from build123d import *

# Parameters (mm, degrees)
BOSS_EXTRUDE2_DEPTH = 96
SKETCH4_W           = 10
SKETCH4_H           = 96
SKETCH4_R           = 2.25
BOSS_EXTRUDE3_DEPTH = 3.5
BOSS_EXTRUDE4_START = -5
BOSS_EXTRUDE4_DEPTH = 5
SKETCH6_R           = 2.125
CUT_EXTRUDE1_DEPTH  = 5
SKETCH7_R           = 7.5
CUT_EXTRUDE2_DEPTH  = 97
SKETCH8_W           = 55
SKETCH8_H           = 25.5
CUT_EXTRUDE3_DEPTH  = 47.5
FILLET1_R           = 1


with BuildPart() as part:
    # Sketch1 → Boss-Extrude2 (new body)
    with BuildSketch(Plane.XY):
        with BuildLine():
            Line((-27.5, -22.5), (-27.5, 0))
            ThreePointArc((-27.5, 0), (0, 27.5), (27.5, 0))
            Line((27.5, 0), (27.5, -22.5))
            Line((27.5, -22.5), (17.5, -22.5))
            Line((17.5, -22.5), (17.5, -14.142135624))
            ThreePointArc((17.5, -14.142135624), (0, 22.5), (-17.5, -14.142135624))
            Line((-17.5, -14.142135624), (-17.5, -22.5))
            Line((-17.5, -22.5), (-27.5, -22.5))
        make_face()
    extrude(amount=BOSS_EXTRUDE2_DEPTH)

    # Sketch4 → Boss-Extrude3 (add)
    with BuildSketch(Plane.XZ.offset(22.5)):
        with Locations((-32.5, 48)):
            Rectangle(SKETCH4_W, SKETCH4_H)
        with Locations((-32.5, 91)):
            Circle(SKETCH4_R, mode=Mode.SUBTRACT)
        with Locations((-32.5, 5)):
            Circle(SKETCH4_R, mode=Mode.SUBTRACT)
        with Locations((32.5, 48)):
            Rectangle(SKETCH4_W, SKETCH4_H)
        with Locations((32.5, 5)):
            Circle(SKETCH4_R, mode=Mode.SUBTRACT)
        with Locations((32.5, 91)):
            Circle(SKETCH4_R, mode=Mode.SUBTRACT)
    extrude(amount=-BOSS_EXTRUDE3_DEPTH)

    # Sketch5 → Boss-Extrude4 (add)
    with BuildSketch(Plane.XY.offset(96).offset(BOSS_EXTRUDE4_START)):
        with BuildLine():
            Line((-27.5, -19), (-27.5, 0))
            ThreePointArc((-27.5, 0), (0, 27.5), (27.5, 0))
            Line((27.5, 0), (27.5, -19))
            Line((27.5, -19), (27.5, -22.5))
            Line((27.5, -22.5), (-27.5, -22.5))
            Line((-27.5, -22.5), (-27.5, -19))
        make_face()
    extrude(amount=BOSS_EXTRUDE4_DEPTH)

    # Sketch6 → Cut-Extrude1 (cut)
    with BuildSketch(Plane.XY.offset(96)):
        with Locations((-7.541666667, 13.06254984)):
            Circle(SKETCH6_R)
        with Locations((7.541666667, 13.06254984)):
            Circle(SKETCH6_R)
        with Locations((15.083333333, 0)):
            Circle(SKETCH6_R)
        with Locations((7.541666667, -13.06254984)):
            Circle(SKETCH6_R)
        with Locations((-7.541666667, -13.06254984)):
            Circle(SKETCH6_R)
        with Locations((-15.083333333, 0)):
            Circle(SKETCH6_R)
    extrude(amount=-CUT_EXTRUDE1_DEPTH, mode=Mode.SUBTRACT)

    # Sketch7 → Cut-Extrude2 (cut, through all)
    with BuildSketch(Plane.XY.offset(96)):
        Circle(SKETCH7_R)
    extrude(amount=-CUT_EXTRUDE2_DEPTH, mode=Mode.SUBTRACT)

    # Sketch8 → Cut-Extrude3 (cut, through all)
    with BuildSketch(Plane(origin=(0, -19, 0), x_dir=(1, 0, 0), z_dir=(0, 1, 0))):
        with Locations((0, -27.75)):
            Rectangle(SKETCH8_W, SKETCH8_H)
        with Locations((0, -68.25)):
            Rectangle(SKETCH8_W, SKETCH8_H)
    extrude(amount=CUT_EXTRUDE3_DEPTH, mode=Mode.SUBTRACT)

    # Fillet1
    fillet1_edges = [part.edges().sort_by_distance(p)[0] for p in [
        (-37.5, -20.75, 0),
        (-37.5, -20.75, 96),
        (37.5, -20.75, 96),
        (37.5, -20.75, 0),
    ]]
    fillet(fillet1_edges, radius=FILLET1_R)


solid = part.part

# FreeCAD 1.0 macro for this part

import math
import FreeCAD as App
import Part
import Sketcher

V = App.Vector


def edges_at(feature, points):
    """Names of the edges that pass closest to the given points."""
    edges = feature.Shape.Edges
    near = lambda p: min(range(len(edges)), key=lambda i: edges[i].distToShape(Part.Vertex(*p))[0])
    return sorted({f"Edge{near(p) + 1}" for p in points})

doc = App.newDocument("Part")
params = doc.addObject("Spreadsheet::Sheet", "Params")
for row, (alias, value) in enumerate([
    ("sketch1_radius", "22.5 mm"),
    ("sketch1_radius2", "27.5 mm"),
    ("sketch1_width", "10 mm"),
    ("sketch1_height", "22.5 mm"),
    ("pad1_length", "96 mm"),
    ("sketch2_diameter", "4.5 mm"),
    ("sketch2_width", "10 mm"),
    ("sketch2_height", "96 mm"),
    ("pad2_length", "3.5 mm"),
    ("sketch3_radius", "27.5 mm"),
    ("sketch3_height", "22.5 mm"),
    ("pad3_length", "5 mm"),
    ("sketch4_diameter", "4.25 mm"),
    ("pocket1_length", "5 mm"),
    ("sketch5_diameter", "15 mm"),
    ("sketch6_width", "55 mm"),
    ("sketch6_height", "25.5 mm"),
    ("fillet_radius", "1 mm"),
], start=1):
    params.set(f"A{row}", alias)
    params.set(f"B{row}", "=" + value)
    params.setAlias(f"B{row}", alias)

body = doc.addObject("PartDesign::Body", "Body")

sketch1 = body.newObject("Sketcher::SketchObject", "Sketch")
sketch1.AttachmentSupport = (doc.getObject("XY_Plane"), [""])
sketch1.MapMode = "FlatFace"
sketch1.addGeometry([
    Part.LineSegment(V(-28, 0, 0), V(-28, -22, 0)),
    Part.LineSegment(V(-28, -22, 0), V(-18, -22, 0)),
    Part.LineSegment(V(-18, -22, 0), V(-18, -14, 0)),
    Part.ArcOfCircle(Part.Circle(V(0, 0, 0), V(0, 0, 1), 22), math.radians(-39), math.radians(219)),
    Part.LineSegment(V(18, -14, 0), V(18, -22, 0)),
    Part.LineSegment(V(18, -22, 0), V(28, -22, 0)),
    Part.LineSegment(V(28, -22, 0), V(28, 0, 0)),
    Part.ArcOfCircle(Part.Circle(V(0, 0, 0), V(0, 0, 1), 28), math.radians(0), math.radians(180)),
], False)
sketch1.addConstraint([
    Sketcher.Constraint("Coincident", 0, 2, 1, 1),
    Sketcher.Constraint("Coincident", 1, 2, 2, 1),
    Sketcher.Constraint("Coincident", 2, 2, 3, 2),
    Sketcher.Constraint("Coincident", 3, 1, 4, 1),
    Sketcher.Constraint("Coincident", 4, 2, 5, 1),
    Sketcher.Constraint("Coincident", 5, 2, 6, 1),
    Sketcher.Constraint("Tangent", 6, 2, 7, 1),
    Sketcher.Constraint("Tangent", 7, 2, 0, 1),
    Sketcher.Constraint("Vertical", 0),
    Sketcher.Constraint("Horizontal", 1),
    Sketcher.Constraint("Vertical", 2),
    Sketcher.Constraint("Vertical", 4),
    Sketcher.Constraint("Horizontal", 5),
    Sketcher.Constraint("Vertical", 6),
    Sketcher.Constraint("Coincident", 3, 3, -1, 1),
    Sketcher.Constraint("Coincident", 7, 3, -1, 1),
    Sketcher.Constraint("Symmetric", 1, 2, 4, 2, -2),
    Sketcher.Constraint("Radius", 3, 22.5),
    Sketcher.Constraint("Radius", 7, 27.5),
    Sketcher.Constraint("DistanceX", 1, 1, 1, 2, 10.0),
    Sketcher.Constraint("DistanceY", 0, 2, 0, 1, 22.5),
])
sketch1.setExpression("Constraints[17]", "Params.sketch1_radius")
sketch1.setExpression("Constraints[18]", "Params.sketch1_radius2")
sketch1.setExpression("Constraints[19]", "Params.sketch1_width")
sketch1.setExpression("Constraints[20]", "Params.sketch1_height")
pad1 = body.newObject("PartDesign::Pad", "Pad")
pad1.Profile = sketch1
pad1.setExpression("Length", "Params.pad1_length")

sketch2 = body.newObject("Sketcher::SketchObject", "Sketch001")
sketch2.AttachmentSupport = (doc.getObject("XZ_Plane"), [""])
sketch2.MapMode = "FlatFace"
sketch2.AttachmentOffset = App.Placement(V(0, 0, 22.5), App.Rotation())
sketch2.addGeometry([
    Part.LineSegment(V(-37.5, 96, 0), V(-37.5, 0, 0)),
    Part.LineSegment(V(-37.5, 0, 0), V(-27.5, 0, 0)),
    Part.LineSegment(V(-27.5, 0, 0), V(-27.5, 96, 0)),
    Part.LineSegment(V(-27.5, 96, 0), V(-37.5, 96, 0)),
    Part.Circle(V(-32.5, 5, 0), V(0, 0, 1), 2.2),
    Part.Circle(V(-32.5, 91, 0), V(0, 0, 1), 2.2),
    Part.LineSegment(V(27.5, 96, 0), V(27.5, 0, 0)),
    Part.LineSegment(V(27.5, 0, 0), V(37.5, 0, 0)),
    Part.LineSegment(V(37.5, 0, 0), V(37.5, 96, 0)),
    Part.LineSegment(V(37.5, 96, 0), V(27.5, 96, 0)),
    Part.Circle(V(32.5, 5, 0), V(0, 0, 1), 2.2),
    Part.Circle(V(32.5, 91, 0), V(0, 0, 1), 2.2),
], False)
sketch2.addConstraint([
    Sketcher.Constraint("Coincident", 0, 2, 1, 1),
    Sketcher.Constraint("Coincident", 1, 2, 2, 1),
    Sketcher.Constraint("Coincident", 2, 2, 3, 1),
    Sketcher.Constraint("Coincident", 3, 2, 0, 1),
    Sketcher.Constraint("Coincident", 6, 2, 7, 1),
    Sketcher.Constraint("Coincident", 7, 2, 8, 1),
    Sketcher.Constraint("Coincident", 8, 2, 9, 1),
    Sketcher.Constraint("Coincident", 9, 2, 6, 1),
    Sketcher.Constraint("Vertical", 0),
    Sketcher.Constraint("Horizontal", 1),
    Sketcher.Constraint("Vertical", 2),
    Sketcher.Constraint("Horizontal", 3),
    Sketcher.Constraint("Vertical", 6),
    Sketcher.Constraint("Horizontal", 7),
    Sketcher.Constraint("Vertical", 8),
    Sketcher.Constraint("Horizontal", 9),
    Sketcher.Constraint("Equal", 4, 5),
    Sketcher.Constraint("Equal", 5, 10),
    Sketcher.Constraint("Equal", 10, 11),
    Sketcher.Constraint("Symmetric", 1, 2, 6, 2, -1, 1),
    Sketcher.Constraint("Symmetric", 4, 3, 10, 3, -2),
    Sketcher.Constraint("Symmetric", 5, 3, 11, 3, -2),
    Sketcher.Constraint("Symmetric", 0, 2, 7, 2, -2),
    Sketcher.Constraint("Horizontal", 3, 2, 8, 2),
    Sketcher.Constraint("Vertical", 4, 3, 5, 3),
    Sketcher.Constraint("Diameter", 4, 4.5),
    Sketcher.Constraint("DistanceX", 1, 1, 1, 2, 10.0),
    Sketcher.Constraint("DistanceY", 0, 2, 0, 1, 96.0),
    Sketcher.Constraint("DistanceY", -1, 1, 4, 3, 5.0),
    Sketcher.Constraint("DistanceY", -1, 1, 5, 3, 91.0),
    Sketcher.Constraint("DistanceX", 4, 3, 10, 3, 65.0),
    Sketcher.Constraint("DistanceX", 0, 2, 4, 3, 5.0),
])
sketch2.setExpression("Constraints[25]", "Params.sketch2_diameter")
sketch2.setExpression("Constraints[26]", "Params.sketch2_width")
sketch2.setExpression("Constraints[27]", "Params.sketch2_height")
pad2 = body.newObject("PartDesign::Pad", "Pad001")
pad2.Profile = sketch2
pad2.setExpression("Length", "Params.pad2_length")
pad2.Reversed = True

sketch3 = body.newObject("Sketcher::SketchObject", "Sketch002")
sketch3.AttachmentSupport = (doc.getObject("XY_Plane"), [""])
sketch3.MapMode = "FlatFace"
sketch3.AttachmentOffset = App.Placement(V(0, 0, 91), App.Rotation())
sketch3.addGeometry([
    Part.ArcOfCircle(Part.Circle(V(0, 0, 0), V(0, 0, 1), 28), math.radians(0), math.radians(180)),
    Part.LineSegment(V(-28, 0, 0), V(-28, -22, 0)),
    Part.LineSegment(V(-28, -22, 0), V(28, -22, 0)),
    Part.LineSegment(V(28, -22, 0), V(28, 0, 0)),
], False)
sketch3.addConstraint([
    Sketcher.Constraint("Tangent", 0, 2, 1, 1),
    Sketcher.Constraint("Coincident", 1, 2, 2, 1),
    Sketcher.Constraint("Coincident", 2, 2, 3, 1),
    Sketcher.Constraint("Tangent", 3, 2, 0, 1),
    Sketcher.Constraint("Vertical", 1),
    Sketcher.Constraint("Horizontal", 2),
    Sketcher.Constraint("Vertical", 3),
    Sketcher.Constraint("Coincident", 0, 3, -1, 1),
    Sketcher.Constraint("Radius", 0, 27.5),
    Sketcher.Constraint("DistanceY", 1, 2, 1, 1, 22.5),
])
sketch3.setExpression("Constraints[8]", "Params.sketch3_radius")
sketch3.setExpression("Constraints[9]", "Params.sketch3_height")
pad3 = body.newObject("PartDesign::Pad", "Pad002")
pad3.Profile = sketch3
pad3.setExpression("Length", "Params.pad3_length")

sketch4 = body.newObject("Sketcher::SketchObject", "Sketch003")
sketch4.AttachmentSupport = (doc.getObject("XY_Plane"), [""])
sketch4.MapMode = "FlatFace"
sketch4.AttachmentOffset = App.Placement(V(0, 0, 96), App.Rotation())
sketch4.addGeometry([
    Part.Circle(V(-7.5, 13.1, 0), V(0, 0, 1), 2.1),
    Part.Circle(V(7.5, 13.1, 0), V(0, 0, 1), 2.1),
    Part.Circle(V(15.1, 0, 0), V(0, 0, 1), 2.1),
    Part.Circle(V(7.5, -13.1, 0), V(0, 0, 1), 2.1),
    Part.Circle(V(-7.5, -13.1, 0), V(0, 0, 1), 2.1),
    Part.Circle(V(-15.1, 0, 0), V(0, 0, 1), 2.1),
], False)
sketch4.addConstraint([
    Sketcher.Constraint("Equal", 0, 1),
    Sketcher.Constraint("Equal", 1, 2),
    Sketcher.Constraint("Equal", 2, 3),
    Sketcher.Constraint("Equal", 3, 4),
    Sketcher.Constraint("Equal", 4, 5),
    Sketcher.Constraint("Symmetric", 0, 3, 3, 3, -1, 1),
    Sketcher.Constraint("Symmetric", 1, 3, 4, 3, -1, 1),
    Sketcher.Constraint("Symmetric", 2, 3, 5, 3, -1, 1),
    Sketcher.Constraint("Symmetric", 0, 3, 1, 3, -2),
    Sketcher.Constraint("PointOnObject", 2, 3, -1),
    Sketcher.Constraint("Diameter", 0, 4.25),
    Sketcher.Constraint("DistanceX", 0, 3, 2, 3, 22.625),
    Sketcher.Constraint("DistanceY", 3, 3, 1, 3, 26.1251),
    Sketcher.Constraint("DistanceX", 0, 3, -1, 1, 7.541667),
])
sketch4.setExpression("Constraints[10]", "Params.sketch4_diameter")
pocket1 = body.newObject("PartDesign::Pocket", "Pocket")
pocket1.Profile = sketch4
pocket1.setExpression("Length", "Params.pocket1_length")

sketch5 = body.newObject("Sketcher::SketchObject", "Sketch004")
sketch5.AttachmentSupport = (doc.getObject("XY_Plane"), [""])
sketch5.MapMode = "FlatFace"
sketch5.AttachmentOffset = App.Placement(V(0, 0, 96), App.Rotation())
sketch5.addGeometry(Part.Circle(V(0, 0, 0), V(0, 0, 1), 8), False)
sketch5.addConstraint([
    Sketcher.Constraint("Coincident", 0, 3, -1, 1),
    Sketcher.Constraint("Diameter", 0, 15.0),
])
sketch5.setExpression("Constraints[1]", "Params.sketch5_diameter")
pocket2 = body.newObject("PartDesign::Pocket", "Pocket001")
pocket2.Profile = sketch5
pocket2.Type = "ThroughAll"

sketch6 = body.newObject("Sketcher::SketchObject", "Sketch005")
sketch6.AttachmentSupport = (doc.getObject("XZ_Plane"), [""])
sketch6.MapMode = "FlatFace"
sketch6.AttachmentOffset = App.Placement(V(0, 0, 19), App.Rotation())
sketch6.addGeometry([
    Part.LineSegment(V(-28, 15, 0), V(-28, 40, 0)),
    Part.LineSegment(V(-28, 40, 0), V(28, 40, 0)),
    Part.LineSegment(V(28, 40, 0), V(28, 15, 0)),
    Part.LineSegment(V(28, 15, 0), V(-28, 15, 0)),
    Part.LineSegment(V(-28, 56, 0), V(-28, 81, 0)),
    Part.LineSegment(V(-28, 81, 0), V(28, 81, 0)),
    Part.LineSegment(V(28, 81, 0), V(28, 56, 0)),
    Part.LineSegment(V(28, 56, 0), V(-28, 56, 0)),
], False)
sketch6.addConstraint([
    Sketcher.Constraint("Coincident", 0, 2, 1, 1),
    Sketcher.Constraint("Coincident", 1, 2, 2, 1),
    Sketcher.Constraint("Coincident", 2, 2, 3, 1),
    Sketcher.Constraint("Coincident", 3, 2, 0, 1),
    Sketcher.Constraint("Coincident", 4, 2, 5, 1),
    Sketcher.Constraint("Coincident", 5, 2, 6, 1),
    Sketcher.Constraint("Coincident", 6, 2, 7, 1),
    Sketcher.Constraint("Coincident", 7, 2, 4, 1),
    Sketcher.Constraint("Vertical", 0),
    Sketcher.Constraint("Horizontal", 1),
    Sketcher.Constraint("Vertical", 2),
    Sketcher.Constraint("Horizontal", 3),
    Sketcher.Constraint("Vertical", 4),
    Sketcher.Constraint("Horizontal", 5),
    Sketcher.Constraint("Vertical", 6),
    Sketcher.Constraint("Horizontal", 7),
    Sketcher.Constraint("Vertical", 3, 2, 4, 2),
    Sketcher.Constraint("Vertical", 2, 2, 5, 2),
    Sketcher.Constraint("Equal", 2, 4),
    Sketcher.Constraint("DistanceX", 1, 1, 1, 2, 55.0),
    Sketcher.Constraint("DistanceY", 0, 1, 0, 2, 25.5),
    Sketcher.Constraint("DistanceY", -1, 1, 2, 2, 15.0),
    Sketcher.Constraint("DistanceY", -1, 1, 4, 2, 81.0),
    Sketcher.Constraint("DistanceX", 0, 2, -1, 1, 27.5),
])
sketch6.setExpression("Constraints[19]", "Params.sketch6_width")
sketch6.setExpression("Constraints[20]", "Params.sketch6_height")
pocket3 = body.newObject("PartDesign::Pocket", "Pocket002")
pocket3.Profile = sketch6
pocket3.Type = "ThroughAll"
doc.recompute()

fillet = body.newObject("PartDesign::Fillet", "Fillet")
fillet.Base = (pocket3, edges_at(pocket3, [
    (-37.5, -20.75, 0),
    (-37.5, -20.75, 96),
    (37.5, -20.75, 96),
    (37.5, -20.75, 0),
]))
fillet.setExpression("Radius", "Params.fillet_radius")

doc.recompute()
